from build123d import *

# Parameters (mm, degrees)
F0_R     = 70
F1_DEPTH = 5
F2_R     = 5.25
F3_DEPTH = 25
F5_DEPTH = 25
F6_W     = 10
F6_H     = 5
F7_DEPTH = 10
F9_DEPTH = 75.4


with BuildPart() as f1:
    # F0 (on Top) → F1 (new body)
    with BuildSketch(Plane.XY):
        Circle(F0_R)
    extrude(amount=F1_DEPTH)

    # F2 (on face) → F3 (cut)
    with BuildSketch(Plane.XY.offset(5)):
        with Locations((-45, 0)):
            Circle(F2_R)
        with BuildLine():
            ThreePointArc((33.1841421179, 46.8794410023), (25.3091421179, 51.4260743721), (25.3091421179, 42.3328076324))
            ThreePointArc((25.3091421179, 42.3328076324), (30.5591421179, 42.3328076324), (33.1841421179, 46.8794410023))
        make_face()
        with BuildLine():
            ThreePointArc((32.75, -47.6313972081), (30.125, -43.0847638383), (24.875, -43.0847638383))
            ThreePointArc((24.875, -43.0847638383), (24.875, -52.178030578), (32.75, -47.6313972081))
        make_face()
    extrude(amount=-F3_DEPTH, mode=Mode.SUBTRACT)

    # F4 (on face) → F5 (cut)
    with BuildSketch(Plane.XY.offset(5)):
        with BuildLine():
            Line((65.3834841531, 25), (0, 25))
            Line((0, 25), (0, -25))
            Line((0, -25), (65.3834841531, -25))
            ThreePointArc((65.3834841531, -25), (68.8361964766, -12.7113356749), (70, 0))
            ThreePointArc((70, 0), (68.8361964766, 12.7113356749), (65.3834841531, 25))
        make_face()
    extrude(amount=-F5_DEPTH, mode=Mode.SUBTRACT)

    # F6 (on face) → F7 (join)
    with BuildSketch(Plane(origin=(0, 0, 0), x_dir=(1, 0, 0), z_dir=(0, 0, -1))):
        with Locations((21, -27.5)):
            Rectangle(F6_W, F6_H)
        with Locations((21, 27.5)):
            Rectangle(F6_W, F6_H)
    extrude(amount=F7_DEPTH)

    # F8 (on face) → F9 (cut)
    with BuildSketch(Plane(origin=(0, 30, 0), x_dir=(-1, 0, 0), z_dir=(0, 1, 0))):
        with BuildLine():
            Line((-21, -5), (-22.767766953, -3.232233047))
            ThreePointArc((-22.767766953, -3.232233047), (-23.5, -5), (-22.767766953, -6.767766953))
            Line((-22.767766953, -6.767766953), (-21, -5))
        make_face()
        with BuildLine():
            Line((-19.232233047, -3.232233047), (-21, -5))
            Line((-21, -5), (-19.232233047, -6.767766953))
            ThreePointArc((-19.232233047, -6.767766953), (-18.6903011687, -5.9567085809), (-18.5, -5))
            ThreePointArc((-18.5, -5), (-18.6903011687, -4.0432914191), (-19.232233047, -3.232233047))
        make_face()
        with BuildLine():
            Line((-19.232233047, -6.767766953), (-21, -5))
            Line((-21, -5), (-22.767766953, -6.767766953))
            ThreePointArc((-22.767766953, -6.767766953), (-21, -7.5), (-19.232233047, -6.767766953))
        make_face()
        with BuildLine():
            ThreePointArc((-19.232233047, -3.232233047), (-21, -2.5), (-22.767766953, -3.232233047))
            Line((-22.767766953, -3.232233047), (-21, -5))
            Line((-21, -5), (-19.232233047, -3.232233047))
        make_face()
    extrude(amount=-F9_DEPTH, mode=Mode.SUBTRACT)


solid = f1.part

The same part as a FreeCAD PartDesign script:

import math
import FreeCAD as App
import Part
import Sketcher
from FreeCAD import Vector


def add_polygon(sketch, points):
    """Adds a closed chain of lines whose ends are joined by coincident constraints."""
    first, n = sketch.GeometryCount, len(points)
    for a, b in zip(points, points[1:] + points[:1]):
        sketch.addGeometry(Part.LineSegment(App.Vector(*a, 0), App.Vector(*b, 0)), False)
    for i in range(n):
        sketch.addConstraint(Sketcher.Constraint("Coincident", first + i, 2, first + (i + 1) % n, 1))

doc = App.newDocument("Part")
body = doc.addObject("PartDesign::Body", "Body")

# Sketch on XY plane
sketch1 = body.newObject("Sketcher::SketchObject", "Sketch")
sketch1.AttachmentSupport = (doc.getObject("XY_Plane"), [""])
sketch1.MapMode = "FlatFace"
sketch1.addGeometry(Part.Circle(Vector(0, 0, 0), Vector(0, 0, 1), 70), False)
sketch1.addConstraint([
    Sketcher.Constraint("Coincident", 0, 3, -1, 1),
    Sketcher.Constraint("Diameter", 0, 140.0),
])
pad1 = body.newObject("PartDesign::Pad", "Pad")
pad1.Profile = sketch1
pad1.Length = 5

# Sketch on XY plane
sketch2 = body.newObject("Sketcher::SketchObject", "Sketch001")
sketch2.AttachmentSupport = (doc.getObject("XY_Plane"), [""])
sketch2.MapMode = "FlatFace"
sketch2.AttachmentOffset = App.Placement(Vector(0, 0, 5), App.Rotation())
sketch2.addGeometry([
    Part.Circle(Vector(-45, 0, 0), Vector(0, 0, 1), 5),  # 0
    Part.ArcOfCircle(Part.Circle(Vector(28, 47, 0), Vector(0, 0, 1), 5), math.radians(0), math.radians(240)),  # 1
    Part.ArcOfCircle(Part.Circle(Vector(28, 47, 0), Vector(0, 0, 1), 5), math.radians(-120), math.radians(0)),  # 2
    Part.ArcOfCircle(Part.Circle(Vector(28, -48, 0), Vector(0, 0, 1), 5), math.radians(0), math.radians(120)),  # 3
    Part.ArcOfCircle(Part.Circle(Vector(28, -48, 0), Vector(0, 0, 1), 5), math.radians(120), math.radians(360)),  # 4
], False)
sketch2.addConstraint([
    Sketcher.Constraint("Tangent", 1, 1, 2, 2),
    Sketcher.Constraint("Coincident", 2, 1, 1, 2),
    Sketcher.Constraint("Tangent", 3, 1, 4, 2),
    Sketcher.Constraint("Coincident", 4, 1, 3, 2),
    Sketcher.Constraint("Equal", 0, 1),
    Sketcher.Constraint("Equal", 2, 3),
    Sketcher.Constraint("PointOnObject", 0, 3, -1),
    Sketcher.Constraint("Horizontal", 2, 3, 1, 1),
    Sketcher.Constraint("Horizontal", 4, 3, 3, 1),
    Sketcher.Constraint("Diameter", 0, 10.5),
    Sketcher.Constraint("DistanceX", 0, 3, -1, 1, 45.0),
    Sketcher.Constraint("DistanceX", -1, 1, 3, 3, 27.5),
    Sketcher.Constraint("DistanceX", -1, 1, 4, 1, 24.875),
    Sketcher.Constraint("DistanceX", 2, 1, 1, 3, 2.625),
    Sketcher.Constraint("DistanceY", -1, 1, 1, 3, 46.879441),
    Sketcher.Constraint("DistanceY", 3, 3, 1, 3, 94.510838),
    Sketcher.Constraint("DistanceX", -1, 1, 1, 3, 27.934142),
])
pocket1 = body.newObject("PartDesign::Pocket", "Pocket")
pocket1.Profile = sketch2
pocket1.Length = 25

# Sketch on XY plane
sketch3 = body.newObject("Sketcher::SketchObject", "Sketch002")
sketch3.AttachmentSupport = (doc.getObject("XY_Plane"), [""])
sketch3.MapMode = "FlatFace"
sketch3.AttachmentOffset = App.Placement(Vector(0, 0, 5), App.Rotation())
sketch3.addGeometry([
    Part.LineSegment(Vector(65, 25, 0), Vector(0, 25, 0)),  # 0
    Part.LineSegment(Vector(0, 25, 0), Vector(0, -25, 0)),  # 1
    Part.LineSegment(Vector(0, -25, 0), Vector(65, -25, 0)),  # 2
    Part.ArcOfCircle(Part.Circle(Vector(0, 0, 0), Vector(0, 0, 1), 70), math.radians(-21), math.radians(0)),  # 3
    Part.ArcOfCircle(Part.Circle(Vector(0, 0, 0), Vector(0, 0, 1), 70), math.radians(0), math.radians(21)),  # 4
], False)
sketch3.addConstraint([
    Sketcher.Constraint("Coincident", 0, 2, 1, 1),
    Sketcher.Constraint("Coincident", 1, 2, 2, 1),
    Sketcher.Constraint("Coincident", 2, 2, 3, 1),
    Sketcher.Constraint("Tangent", 3, 2, 4, 1),
    Sketcher.Constraint("Coincident", 4, 2, 0, 1),
    Sketcher.Constraint("Horizontal", 0),
    Sketcher.Constraint("Vertical", 1),
    Sketcher.Constraint("Horizontal", 2),
    Sketcher.Constraint("Coincident", 3, 3, -1, 1),
    Sketcher.Constraint("Equal", 3, 4),
    Sketcher.Constraint("Symmetric", 0, 2, 1, 2, -1, 1),
    Sketcher.Constraint("PointOnObject", 3, 2, -1),
    Sketcher.Constraint("Radius", 3, 70.0),
    Sketcher.Constraint("DistanceY", 1, 2, 1, 1, 50.0),
])
pocket2 = body.newObject("PartDesign::Pocket", "Pocket001")
pocket2.Profile = sketch3
pocket2.Length = 25

# Sketch on XY plane
sketch4 = body.newObject("Sketcher::SketchObject", "Sketch003")
sketch4.AttachmentSupport = (doc.getObject("XY_Plane"), [""])
sketch4.MapMode = "FlatFace"
add_polygon(sketch4, [(16, 25), (16, 30), (26, 30), (26, 25)])  # lines 0-3
add_polygon(sketch4, [(16, -30), (16, -25), (26, -25), (26, -30)])  # lines 4-7
sketch4.addConstraint([
    Sketcher.Constraint("Vertical", 0),
    Sketcher.Constraint("Horizontal", 1),
    Sketcher.Constraint("Vertical", 2),
    Sketcher.Constraint("Horizontal", 3),
    Sketcher.Constraint("Vertical", 4),
    Sketcher.Constraint("Horizontal", 5),
    Sketcher.Constraint("Vertical", 6),
    Sketcher.Constraint("Horizontal", 7),
    Sketcher.Constraint("Symmetric", 3, 2, 4, 2, -1),
    Sketcher.Constraint("Symmetric", 1, 2, 6, 2, -1),
    Sketcher.Constraint("DistanceX", 1, 1, 1, 2, 10.0),
    Sketcher.Constraint("DistanceY", 0, 1, 0, 2, 5.0),
    Sketcher.Constraint("DistanceX", -1, 1, 0, 2, 16.0),
    Sketcher.Constraint("DistanceY", -1, 1, 0, 2, 30.0),
])
pad2 = body.newObject("PartDesign::Pad", "Pad001")
pad2.Profile = sketch4
pad2.Length = 10
pad2.Reversed = True

# Sketch on XZ plane
sketch5 = body.newObject("Sketcher::SketchObject", "Sketch004")
sketch5.AttachmentSupport = (doc.getObject("XZ_Plane"), [""])
sketch5.MapMode = "FlatFace"
sketch5.AttachmentOffset = App.Placement(Vector(0, 0, -30), App.Rotation())
sketch5.addGeometry([
    Part.ArcOfCircle(Part.Circle(Vector(21, -5, 0), Vector(0, 0, 1), 2.5), math.radians(-45), math.radians(45)),  # 0
    Part.ArcOfCircle(Part.Circle(Vector(21, -5, 0), Vector(0, 0, 1), 2.5), math.radians(-135), math.radians(-45)),  # 1
    Part.ArcOfCircle(Part.Circle(Vector(21, -5, 0), Vector(0, 0, 1), 2.5), math.radians(180), math.radians(225)),  # 2
    Part.ArcOfCircle(Part.Circle(Vector(21, -5, 0), Vector(0, 0, 1), 2.5), math.radians(135), math.radians(180)),  # 3
    Part.ArcOfCircle(Part.Circle(Vector(21, -5, 0), Vector(0, 0, 1), 2.5), math.radians(45), math.radians(135)),  # 4
], False)
sketch5.addConstraint([
    Sketcher.Constraint("Tangent", 0, 1, 1, 2),
    Sketcher.Constraint("Tangent", 1, 1, 2, 2),
    Sketcher.Constraint("Tangent", 2, 1, 3, 2),
    Sketcher.Constraint("Tangent", 3, 1, 4, 2),
    Sketcher.Constraint("Tangent", 4, 1, 0, 2),
    Sketcher.Constraint("Coincident", 2, 3, 0, 3),
    Sketcher.Constraint("Horizontal", 0, 1, 1, 1),
    Sketcher.Constraint("Horizontal", 4, 3, 2, 1),
    Sketcher.Constraint("Horizontal", 3, 1, 4, 1),
    Sketcher.Constraint("Vertical", 1, 1, 3, 1),
    Sketcher.Constraint("Radius", 0, 2.5),
    Sketcher.Constraint("DistanceX", -1, 1, 0, 3, 21.0),
    Sketcher.Constraint("DistanceY", 0, 3, -1, 1, 5.0),
    Sketcher.Constraint("DistanceX", -1, 1, 0, 1, 22.767767),
])
pocket3 = body.newObject("PartDesign::Pocket", "Pocket002")
pocket3.Profile = sketch5
pocket3.Length = 75.4
pocket3.Reversed = True

doc.recompute()
